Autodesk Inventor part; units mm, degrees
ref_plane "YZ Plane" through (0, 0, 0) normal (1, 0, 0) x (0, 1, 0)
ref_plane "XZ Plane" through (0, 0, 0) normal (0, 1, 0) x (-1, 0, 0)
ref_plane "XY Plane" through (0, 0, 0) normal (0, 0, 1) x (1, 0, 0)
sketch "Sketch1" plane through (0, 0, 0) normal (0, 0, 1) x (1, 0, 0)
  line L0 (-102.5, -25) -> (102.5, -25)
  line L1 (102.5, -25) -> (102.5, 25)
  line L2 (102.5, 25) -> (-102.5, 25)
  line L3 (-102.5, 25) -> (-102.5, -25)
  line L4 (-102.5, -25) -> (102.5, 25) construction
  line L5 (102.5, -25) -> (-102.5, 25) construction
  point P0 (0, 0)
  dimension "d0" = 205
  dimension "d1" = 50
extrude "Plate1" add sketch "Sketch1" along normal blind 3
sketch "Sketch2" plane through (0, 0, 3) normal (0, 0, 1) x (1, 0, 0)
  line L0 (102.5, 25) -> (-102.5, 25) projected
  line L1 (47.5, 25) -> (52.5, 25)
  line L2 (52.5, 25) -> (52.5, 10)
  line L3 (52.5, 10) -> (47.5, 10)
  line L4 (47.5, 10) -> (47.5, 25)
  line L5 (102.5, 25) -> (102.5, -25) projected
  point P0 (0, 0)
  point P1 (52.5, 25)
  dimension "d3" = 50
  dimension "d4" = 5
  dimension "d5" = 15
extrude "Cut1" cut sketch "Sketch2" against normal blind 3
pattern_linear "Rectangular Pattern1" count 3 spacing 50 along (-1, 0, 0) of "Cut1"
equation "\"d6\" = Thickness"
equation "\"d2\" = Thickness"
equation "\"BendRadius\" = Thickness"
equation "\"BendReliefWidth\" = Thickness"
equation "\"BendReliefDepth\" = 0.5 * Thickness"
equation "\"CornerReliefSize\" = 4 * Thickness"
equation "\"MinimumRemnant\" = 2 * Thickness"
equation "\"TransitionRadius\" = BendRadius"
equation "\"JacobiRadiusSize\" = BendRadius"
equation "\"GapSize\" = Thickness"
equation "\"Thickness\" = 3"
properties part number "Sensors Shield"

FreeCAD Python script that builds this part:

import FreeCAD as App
import Part
import Sketcher

V = App.Vector
Q = App.Units.Quantity


def add_polygon(sketch, points):
    """Adds a closed chain of lines whose ends are joined by coincident constraints."""
    first, n = sketch.GeometryCount, len(points)
    for a, b in zip(points, points[1:] + points[:1]):
        sketch.addGeometry(Part.LineSegment(App.Vector(*a, 0), App.Vector(*b, 0)), False)
    for i in range(n):
        sketch.addConstraint(Sketcher.Constraint("Coincident", first + i, 2, first + (i + 1) % n, 1))

doc = App.newDocument("Part")
body = doc.addObject("PartDesign::Body", "Body")

# Sketch on XY plane
sketch1 = doc.addObject("Sketcher::SketchObject", "Sketch")
body.addObject(sketch1)
sketch1.AttachmentSupport = (doc.XY_Plane, [""])
sketch1.MapMode = "FlatFace"
add_polygon(sketch1, [(-102.5, 25), (-102.5, -25), (102.5, -25), (102.5, 25)])  # lines 0-3
sketch1.addConstraint(Sketcher.Constraint("Vertical", 0))
sketch1.addConstraint(Sketcher.Constraint("Horizontal", 1))
sketch1.addConstraint(Sketcher.Constraint("Vertical", 2))
sketch1.addConstraint(Sketcher.Constraint("Horizontal", 3))
sketch1.addConstraint(Sketcher.Constraint("Symmetric", 0, 2, 2, 2, -1, 1))
sketch1.addConstraint(Sketcher.Constraint("DistanceX", 1, 1, 1, 2, Q("205 mm")))
sketch1.addConstraint(Sketcher.Constraint("DistanceY", 0, 2, 0, 1, Q("50 mm")))
pad1 = doc.addObject("PartDesign::Pad", "Pad")
body.addObject(pad1)
pad1.Profile = sketch1
pad1.Length = 3

# Sketch on XY plane
sketch2 = doc.addObject("Sketcher::SketchObject", "Sketch001")
body.addObject(sketch2)
sketch2.AttachmentSupport = (doc.XY_Plane, [""])
sketch2.MapMode = "FlatFace"
sketch2.AttachmentOffset = App.Placement(V(0, 0, 3), App.Rotation())
add_polygon(sketch2, [(52.5, 10), (52.5, 25), (47.5, 25), (47.5, 10)])  # lines 0-3
sketch2.addConstraint(Sketcher.Constraint("Vertical", 0))
sketch2.addConstraint(Sketcher.Constraint("Horizontal", 1))
sketch2.addConstraint(Sketcher.Constraint("Vertical", 2))
sketch2.addConstraint(Sketcher.Constraint("Horizontal", 3))
sketch2.addConstraint(Sketcher.Constraint("DistanceX", 1, 2, 1, 1, Q("5 mm")))
sketch2.addConstraint(Sketcher.Constraint("DistanceY", 0, 1, 0, 2, Q("15 mm")))
sketch2.addConstraint(Sketcher.Constraint("DistanceY", -1, 1, 0, 2, Q("25 mm")))
sketch2.addConstraint(Sketcher.Constraint("DistanceX", -1, 1, 0, 2, Q("52.5 mm")))
pocket1 = doc.addObject("PartDesign::Pocket", "Pocket")
body.addObject(pocket1)
pocket1.Profile = sketch2
pocket1.Length = 3
doc.recompute()

linearpattern = doc.addObject("PartDesign::LinearPattern", "LinearPattern")
body.addObject(linearpattern)
linearpattern.Originals = [pocket1]
linearpattern.Direction = (doc.X_Axis, [""])
linearpattern.Mode = "offset"
linearpattern.Offset = 50
linearpattern.Occurrences = 3
linearpattern.Reversed = True
body.Tip = linearpattern

doc.recompute()
